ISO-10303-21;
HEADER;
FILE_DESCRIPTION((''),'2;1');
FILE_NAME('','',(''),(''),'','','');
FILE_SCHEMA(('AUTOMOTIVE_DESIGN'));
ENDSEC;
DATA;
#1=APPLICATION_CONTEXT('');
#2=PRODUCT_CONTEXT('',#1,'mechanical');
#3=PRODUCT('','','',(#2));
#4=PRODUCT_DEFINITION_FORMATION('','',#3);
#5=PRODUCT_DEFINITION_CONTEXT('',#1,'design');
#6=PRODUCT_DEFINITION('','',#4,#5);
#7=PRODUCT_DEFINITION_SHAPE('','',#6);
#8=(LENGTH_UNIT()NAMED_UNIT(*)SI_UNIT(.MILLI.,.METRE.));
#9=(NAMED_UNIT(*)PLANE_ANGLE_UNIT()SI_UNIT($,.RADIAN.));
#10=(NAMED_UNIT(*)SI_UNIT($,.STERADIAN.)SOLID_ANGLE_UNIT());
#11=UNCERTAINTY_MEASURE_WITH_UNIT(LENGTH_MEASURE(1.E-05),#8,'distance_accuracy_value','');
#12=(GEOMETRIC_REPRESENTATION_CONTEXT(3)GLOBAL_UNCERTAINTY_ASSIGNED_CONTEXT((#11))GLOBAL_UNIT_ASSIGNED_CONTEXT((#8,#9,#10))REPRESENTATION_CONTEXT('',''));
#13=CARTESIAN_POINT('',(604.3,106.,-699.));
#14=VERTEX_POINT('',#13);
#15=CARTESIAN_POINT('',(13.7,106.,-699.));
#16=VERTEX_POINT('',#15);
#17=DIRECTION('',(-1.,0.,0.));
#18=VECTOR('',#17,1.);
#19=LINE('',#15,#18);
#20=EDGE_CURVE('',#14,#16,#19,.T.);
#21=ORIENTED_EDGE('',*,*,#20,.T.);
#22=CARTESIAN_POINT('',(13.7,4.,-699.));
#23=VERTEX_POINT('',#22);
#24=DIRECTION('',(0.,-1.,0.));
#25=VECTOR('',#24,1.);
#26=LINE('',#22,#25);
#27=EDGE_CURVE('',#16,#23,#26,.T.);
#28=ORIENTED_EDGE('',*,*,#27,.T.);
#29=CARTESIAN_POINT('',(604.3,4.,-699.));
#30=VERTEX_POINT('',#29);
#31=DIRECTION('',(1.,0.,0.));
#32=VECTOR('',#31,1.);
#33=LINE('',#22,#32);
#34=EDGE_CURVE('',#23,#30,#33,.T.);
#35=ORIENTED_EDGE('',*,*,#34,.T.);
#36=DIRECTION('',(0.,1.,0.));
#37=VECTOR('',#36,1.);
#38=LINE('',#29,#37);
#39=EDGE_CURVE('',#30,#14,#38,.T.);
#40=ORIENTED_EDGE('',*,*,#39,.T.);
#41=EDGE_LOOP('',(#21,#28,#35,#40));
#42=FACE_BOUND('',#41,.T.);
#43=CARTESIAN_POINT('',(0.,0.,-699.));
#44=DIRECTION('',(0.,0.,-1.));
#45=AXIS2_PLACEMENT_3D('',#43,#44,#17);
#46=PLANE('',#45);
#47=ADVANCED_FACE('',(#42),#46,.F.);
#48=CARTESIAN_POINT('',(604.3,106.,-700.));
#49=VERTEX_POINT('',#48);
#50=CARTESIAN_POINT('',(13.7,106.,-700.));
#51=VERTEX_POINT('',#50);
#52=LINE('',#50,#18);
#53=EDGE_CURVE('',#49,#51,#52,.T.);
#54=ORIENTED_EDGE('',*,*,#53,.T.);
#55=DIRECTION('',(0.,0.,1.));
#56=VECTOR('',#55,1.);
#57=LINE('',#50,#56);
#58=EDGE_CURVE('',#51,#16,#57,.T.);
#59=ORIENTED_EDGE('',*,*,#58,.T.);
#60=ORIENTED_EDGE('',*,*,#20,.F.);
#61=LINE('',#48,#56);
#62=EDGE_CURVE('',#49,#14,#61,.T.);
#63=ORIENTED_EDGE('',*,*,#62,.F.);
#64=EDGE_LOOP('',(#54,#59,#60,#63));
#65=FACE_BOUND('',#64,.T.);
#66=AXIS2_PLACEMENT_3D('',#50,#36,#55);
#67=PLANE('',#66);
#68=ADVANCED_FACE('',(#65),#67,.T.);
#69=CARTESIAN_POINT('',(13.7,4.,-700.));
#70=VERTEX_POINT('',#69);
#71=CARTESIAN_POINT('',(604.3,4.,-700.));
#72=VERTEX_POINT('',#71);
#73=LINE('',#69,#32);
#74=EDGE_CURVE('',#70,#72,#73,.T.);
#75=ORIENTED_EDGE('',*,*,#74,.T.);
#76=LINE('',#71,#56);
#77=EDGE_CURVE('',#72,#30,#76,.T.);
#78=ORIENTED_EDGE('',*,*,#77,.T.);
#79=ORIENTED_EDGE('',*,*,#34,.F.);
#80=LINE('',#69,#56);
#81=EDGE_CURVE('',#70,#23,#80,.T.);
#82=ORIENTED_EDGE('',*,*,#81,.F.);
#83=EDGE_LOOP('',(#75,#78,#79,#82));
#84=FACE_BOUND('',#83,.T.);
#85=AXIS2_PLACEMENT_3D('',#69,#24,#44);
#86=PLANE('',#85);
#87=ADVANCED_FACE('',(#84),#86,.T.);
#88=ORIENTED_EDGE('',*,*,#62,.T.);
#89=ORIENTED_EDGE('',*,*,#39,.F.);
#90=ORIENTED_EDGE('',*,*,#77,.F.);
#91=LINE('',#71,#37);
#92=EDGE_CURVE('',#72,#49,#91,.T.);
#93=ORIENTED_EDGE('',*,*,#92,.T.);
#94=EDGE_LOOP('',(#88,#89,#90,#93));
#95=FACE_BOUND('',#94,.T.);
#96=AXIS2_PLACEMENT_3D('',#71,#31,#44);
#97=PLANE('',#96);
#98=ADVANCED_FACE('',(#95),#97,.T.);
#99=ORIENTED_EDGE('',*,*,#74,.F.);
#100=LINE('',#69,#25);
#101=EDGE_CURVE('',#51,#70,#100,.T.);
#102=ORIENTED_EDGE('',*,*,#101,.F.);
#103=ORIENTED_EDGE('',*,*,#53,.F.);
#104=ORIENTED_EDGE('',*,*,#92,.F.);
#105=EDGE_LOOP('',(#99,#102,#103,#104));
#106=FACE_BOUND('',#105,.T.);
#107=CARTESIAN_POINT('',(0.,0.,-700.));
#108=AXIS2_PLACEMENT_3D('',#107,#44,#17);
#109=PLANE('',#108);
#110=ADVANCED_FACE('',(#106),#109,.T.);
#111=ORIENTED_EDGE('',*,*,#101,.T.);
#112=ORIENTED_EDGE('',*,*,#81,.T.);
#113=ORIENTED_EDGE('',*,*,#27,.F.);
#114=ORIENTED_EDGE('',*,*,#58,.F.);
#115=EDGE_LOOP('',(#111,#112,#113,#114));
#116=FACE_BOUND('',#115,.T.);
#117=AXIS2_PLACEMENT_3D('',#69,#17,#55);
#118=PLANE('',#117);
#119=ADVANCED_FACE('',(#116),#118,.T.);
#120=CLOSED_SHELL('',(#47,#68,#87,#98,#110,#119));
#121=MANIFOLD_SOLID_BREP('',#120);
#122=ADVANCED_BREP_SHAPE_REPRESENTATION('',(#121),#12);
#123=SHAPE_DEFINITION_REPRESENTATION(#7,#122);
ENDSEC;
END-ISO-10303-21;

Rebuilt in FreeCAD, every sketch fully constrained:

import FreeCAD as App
import Part
import Sketcher

V = App.Vector
Q = App.Units.Quantity

doc = App.newDocument("Part")
params = doc.addObject("Spreadsheet::Sheet", "Params")
for row, (alias, value) in enumerate([
    ("sketch1_height", "102 mm"),
    ("sketch1_width", "590.6 mm"),
    ("pad1_length", "1 mm"),
], start=1):
    params.set(f"A{row}", alias)
    params.set(f"B{row}", "=" + value)
    params.setAlias(f"B{row}", alias)

body = doc.addObject("PartDesign::Body", "Body")

sketch1 = doc.addObject("Sketcher::SketchObject", "Sketch")
body.addObject(sketch1)
sketch1.AttachmentSupport = (doc.XY_Plane, [""])
sketch1.MapMode = "FlatFace"
sketch1.AttachmentOffset = App.Placement(V(0, 0, -699), App.Rotation())
sketch1.addGeometry(Part.LineSegment(V(14, 106, 0), V(14, 4, 0)), False)
sketch1.addGeometry(Part.LineSegment(V(14, 4, 0), V(604, 4, 0)), False)
sketch1.addGeometry(Part.LineSegment(V(604, 4, 0), V(604, 106, 0)), False)
sketch1.addGeometry(Part.LineSegment(V(604, 106, 0), V(14, 106, 0)), False)
sketch1.addConstraint(Sketcher.Constraint("Coincident", 0, 2, 1, 1))
sketch1.addConstraint(Sketcher.Constraint("Coincident", 1, 2, 2, 1))
sketch1.addConstraint(Sketcher.Constraint("Coincident", 2, 2, 3, 1))
sketch1.addConstraint(Sketcher.Constraint("Coincident", 3, 2, 0, 1))
sketch1.addConstraint(Sketcher.Constraint("Vertical", 0))
sketch1.addConstraint(Sketcher.Constraint("Horizontal", 1))
sketch1.addConstraint(Sketcher.Constraint("Vertical", 2))
sketch1.addConstraint(Sketcher.Constraint("Horizontal", 3))
sketch1.addConstraint(Sketcher.Constraint("DistanceY", 0, 2, 0, 1, Q("102 mm")))
sketch1.addConstraint(Sketcher.Constraint("DistanceX", 1, 1, 1, 2, Q("590.6 mm")))
sketch1.addConstraint(Sketcher.Constraint("DistanceY", -1, 1, 0, 2, Q("4 mm")))
sketch1.addConstraint(Sketcher.Constraint("DistanceX", -1, 1, 0, 2, Q("13.7 mm")))
sketch1.setExpression("Constraints[8]", "Params.sketch1_height")
sketch1.setExpression("Constraints[9]", "Params.sketch1_width")
pad1 = doc.addObject("PartDesign::Pad", "Pad")
body.addObject(pad1)
pad1.Profile = sketch1
pad1.setExpression("Length", "Params.pad1_length")
pad1.Reversed = True

doc.recompute()
